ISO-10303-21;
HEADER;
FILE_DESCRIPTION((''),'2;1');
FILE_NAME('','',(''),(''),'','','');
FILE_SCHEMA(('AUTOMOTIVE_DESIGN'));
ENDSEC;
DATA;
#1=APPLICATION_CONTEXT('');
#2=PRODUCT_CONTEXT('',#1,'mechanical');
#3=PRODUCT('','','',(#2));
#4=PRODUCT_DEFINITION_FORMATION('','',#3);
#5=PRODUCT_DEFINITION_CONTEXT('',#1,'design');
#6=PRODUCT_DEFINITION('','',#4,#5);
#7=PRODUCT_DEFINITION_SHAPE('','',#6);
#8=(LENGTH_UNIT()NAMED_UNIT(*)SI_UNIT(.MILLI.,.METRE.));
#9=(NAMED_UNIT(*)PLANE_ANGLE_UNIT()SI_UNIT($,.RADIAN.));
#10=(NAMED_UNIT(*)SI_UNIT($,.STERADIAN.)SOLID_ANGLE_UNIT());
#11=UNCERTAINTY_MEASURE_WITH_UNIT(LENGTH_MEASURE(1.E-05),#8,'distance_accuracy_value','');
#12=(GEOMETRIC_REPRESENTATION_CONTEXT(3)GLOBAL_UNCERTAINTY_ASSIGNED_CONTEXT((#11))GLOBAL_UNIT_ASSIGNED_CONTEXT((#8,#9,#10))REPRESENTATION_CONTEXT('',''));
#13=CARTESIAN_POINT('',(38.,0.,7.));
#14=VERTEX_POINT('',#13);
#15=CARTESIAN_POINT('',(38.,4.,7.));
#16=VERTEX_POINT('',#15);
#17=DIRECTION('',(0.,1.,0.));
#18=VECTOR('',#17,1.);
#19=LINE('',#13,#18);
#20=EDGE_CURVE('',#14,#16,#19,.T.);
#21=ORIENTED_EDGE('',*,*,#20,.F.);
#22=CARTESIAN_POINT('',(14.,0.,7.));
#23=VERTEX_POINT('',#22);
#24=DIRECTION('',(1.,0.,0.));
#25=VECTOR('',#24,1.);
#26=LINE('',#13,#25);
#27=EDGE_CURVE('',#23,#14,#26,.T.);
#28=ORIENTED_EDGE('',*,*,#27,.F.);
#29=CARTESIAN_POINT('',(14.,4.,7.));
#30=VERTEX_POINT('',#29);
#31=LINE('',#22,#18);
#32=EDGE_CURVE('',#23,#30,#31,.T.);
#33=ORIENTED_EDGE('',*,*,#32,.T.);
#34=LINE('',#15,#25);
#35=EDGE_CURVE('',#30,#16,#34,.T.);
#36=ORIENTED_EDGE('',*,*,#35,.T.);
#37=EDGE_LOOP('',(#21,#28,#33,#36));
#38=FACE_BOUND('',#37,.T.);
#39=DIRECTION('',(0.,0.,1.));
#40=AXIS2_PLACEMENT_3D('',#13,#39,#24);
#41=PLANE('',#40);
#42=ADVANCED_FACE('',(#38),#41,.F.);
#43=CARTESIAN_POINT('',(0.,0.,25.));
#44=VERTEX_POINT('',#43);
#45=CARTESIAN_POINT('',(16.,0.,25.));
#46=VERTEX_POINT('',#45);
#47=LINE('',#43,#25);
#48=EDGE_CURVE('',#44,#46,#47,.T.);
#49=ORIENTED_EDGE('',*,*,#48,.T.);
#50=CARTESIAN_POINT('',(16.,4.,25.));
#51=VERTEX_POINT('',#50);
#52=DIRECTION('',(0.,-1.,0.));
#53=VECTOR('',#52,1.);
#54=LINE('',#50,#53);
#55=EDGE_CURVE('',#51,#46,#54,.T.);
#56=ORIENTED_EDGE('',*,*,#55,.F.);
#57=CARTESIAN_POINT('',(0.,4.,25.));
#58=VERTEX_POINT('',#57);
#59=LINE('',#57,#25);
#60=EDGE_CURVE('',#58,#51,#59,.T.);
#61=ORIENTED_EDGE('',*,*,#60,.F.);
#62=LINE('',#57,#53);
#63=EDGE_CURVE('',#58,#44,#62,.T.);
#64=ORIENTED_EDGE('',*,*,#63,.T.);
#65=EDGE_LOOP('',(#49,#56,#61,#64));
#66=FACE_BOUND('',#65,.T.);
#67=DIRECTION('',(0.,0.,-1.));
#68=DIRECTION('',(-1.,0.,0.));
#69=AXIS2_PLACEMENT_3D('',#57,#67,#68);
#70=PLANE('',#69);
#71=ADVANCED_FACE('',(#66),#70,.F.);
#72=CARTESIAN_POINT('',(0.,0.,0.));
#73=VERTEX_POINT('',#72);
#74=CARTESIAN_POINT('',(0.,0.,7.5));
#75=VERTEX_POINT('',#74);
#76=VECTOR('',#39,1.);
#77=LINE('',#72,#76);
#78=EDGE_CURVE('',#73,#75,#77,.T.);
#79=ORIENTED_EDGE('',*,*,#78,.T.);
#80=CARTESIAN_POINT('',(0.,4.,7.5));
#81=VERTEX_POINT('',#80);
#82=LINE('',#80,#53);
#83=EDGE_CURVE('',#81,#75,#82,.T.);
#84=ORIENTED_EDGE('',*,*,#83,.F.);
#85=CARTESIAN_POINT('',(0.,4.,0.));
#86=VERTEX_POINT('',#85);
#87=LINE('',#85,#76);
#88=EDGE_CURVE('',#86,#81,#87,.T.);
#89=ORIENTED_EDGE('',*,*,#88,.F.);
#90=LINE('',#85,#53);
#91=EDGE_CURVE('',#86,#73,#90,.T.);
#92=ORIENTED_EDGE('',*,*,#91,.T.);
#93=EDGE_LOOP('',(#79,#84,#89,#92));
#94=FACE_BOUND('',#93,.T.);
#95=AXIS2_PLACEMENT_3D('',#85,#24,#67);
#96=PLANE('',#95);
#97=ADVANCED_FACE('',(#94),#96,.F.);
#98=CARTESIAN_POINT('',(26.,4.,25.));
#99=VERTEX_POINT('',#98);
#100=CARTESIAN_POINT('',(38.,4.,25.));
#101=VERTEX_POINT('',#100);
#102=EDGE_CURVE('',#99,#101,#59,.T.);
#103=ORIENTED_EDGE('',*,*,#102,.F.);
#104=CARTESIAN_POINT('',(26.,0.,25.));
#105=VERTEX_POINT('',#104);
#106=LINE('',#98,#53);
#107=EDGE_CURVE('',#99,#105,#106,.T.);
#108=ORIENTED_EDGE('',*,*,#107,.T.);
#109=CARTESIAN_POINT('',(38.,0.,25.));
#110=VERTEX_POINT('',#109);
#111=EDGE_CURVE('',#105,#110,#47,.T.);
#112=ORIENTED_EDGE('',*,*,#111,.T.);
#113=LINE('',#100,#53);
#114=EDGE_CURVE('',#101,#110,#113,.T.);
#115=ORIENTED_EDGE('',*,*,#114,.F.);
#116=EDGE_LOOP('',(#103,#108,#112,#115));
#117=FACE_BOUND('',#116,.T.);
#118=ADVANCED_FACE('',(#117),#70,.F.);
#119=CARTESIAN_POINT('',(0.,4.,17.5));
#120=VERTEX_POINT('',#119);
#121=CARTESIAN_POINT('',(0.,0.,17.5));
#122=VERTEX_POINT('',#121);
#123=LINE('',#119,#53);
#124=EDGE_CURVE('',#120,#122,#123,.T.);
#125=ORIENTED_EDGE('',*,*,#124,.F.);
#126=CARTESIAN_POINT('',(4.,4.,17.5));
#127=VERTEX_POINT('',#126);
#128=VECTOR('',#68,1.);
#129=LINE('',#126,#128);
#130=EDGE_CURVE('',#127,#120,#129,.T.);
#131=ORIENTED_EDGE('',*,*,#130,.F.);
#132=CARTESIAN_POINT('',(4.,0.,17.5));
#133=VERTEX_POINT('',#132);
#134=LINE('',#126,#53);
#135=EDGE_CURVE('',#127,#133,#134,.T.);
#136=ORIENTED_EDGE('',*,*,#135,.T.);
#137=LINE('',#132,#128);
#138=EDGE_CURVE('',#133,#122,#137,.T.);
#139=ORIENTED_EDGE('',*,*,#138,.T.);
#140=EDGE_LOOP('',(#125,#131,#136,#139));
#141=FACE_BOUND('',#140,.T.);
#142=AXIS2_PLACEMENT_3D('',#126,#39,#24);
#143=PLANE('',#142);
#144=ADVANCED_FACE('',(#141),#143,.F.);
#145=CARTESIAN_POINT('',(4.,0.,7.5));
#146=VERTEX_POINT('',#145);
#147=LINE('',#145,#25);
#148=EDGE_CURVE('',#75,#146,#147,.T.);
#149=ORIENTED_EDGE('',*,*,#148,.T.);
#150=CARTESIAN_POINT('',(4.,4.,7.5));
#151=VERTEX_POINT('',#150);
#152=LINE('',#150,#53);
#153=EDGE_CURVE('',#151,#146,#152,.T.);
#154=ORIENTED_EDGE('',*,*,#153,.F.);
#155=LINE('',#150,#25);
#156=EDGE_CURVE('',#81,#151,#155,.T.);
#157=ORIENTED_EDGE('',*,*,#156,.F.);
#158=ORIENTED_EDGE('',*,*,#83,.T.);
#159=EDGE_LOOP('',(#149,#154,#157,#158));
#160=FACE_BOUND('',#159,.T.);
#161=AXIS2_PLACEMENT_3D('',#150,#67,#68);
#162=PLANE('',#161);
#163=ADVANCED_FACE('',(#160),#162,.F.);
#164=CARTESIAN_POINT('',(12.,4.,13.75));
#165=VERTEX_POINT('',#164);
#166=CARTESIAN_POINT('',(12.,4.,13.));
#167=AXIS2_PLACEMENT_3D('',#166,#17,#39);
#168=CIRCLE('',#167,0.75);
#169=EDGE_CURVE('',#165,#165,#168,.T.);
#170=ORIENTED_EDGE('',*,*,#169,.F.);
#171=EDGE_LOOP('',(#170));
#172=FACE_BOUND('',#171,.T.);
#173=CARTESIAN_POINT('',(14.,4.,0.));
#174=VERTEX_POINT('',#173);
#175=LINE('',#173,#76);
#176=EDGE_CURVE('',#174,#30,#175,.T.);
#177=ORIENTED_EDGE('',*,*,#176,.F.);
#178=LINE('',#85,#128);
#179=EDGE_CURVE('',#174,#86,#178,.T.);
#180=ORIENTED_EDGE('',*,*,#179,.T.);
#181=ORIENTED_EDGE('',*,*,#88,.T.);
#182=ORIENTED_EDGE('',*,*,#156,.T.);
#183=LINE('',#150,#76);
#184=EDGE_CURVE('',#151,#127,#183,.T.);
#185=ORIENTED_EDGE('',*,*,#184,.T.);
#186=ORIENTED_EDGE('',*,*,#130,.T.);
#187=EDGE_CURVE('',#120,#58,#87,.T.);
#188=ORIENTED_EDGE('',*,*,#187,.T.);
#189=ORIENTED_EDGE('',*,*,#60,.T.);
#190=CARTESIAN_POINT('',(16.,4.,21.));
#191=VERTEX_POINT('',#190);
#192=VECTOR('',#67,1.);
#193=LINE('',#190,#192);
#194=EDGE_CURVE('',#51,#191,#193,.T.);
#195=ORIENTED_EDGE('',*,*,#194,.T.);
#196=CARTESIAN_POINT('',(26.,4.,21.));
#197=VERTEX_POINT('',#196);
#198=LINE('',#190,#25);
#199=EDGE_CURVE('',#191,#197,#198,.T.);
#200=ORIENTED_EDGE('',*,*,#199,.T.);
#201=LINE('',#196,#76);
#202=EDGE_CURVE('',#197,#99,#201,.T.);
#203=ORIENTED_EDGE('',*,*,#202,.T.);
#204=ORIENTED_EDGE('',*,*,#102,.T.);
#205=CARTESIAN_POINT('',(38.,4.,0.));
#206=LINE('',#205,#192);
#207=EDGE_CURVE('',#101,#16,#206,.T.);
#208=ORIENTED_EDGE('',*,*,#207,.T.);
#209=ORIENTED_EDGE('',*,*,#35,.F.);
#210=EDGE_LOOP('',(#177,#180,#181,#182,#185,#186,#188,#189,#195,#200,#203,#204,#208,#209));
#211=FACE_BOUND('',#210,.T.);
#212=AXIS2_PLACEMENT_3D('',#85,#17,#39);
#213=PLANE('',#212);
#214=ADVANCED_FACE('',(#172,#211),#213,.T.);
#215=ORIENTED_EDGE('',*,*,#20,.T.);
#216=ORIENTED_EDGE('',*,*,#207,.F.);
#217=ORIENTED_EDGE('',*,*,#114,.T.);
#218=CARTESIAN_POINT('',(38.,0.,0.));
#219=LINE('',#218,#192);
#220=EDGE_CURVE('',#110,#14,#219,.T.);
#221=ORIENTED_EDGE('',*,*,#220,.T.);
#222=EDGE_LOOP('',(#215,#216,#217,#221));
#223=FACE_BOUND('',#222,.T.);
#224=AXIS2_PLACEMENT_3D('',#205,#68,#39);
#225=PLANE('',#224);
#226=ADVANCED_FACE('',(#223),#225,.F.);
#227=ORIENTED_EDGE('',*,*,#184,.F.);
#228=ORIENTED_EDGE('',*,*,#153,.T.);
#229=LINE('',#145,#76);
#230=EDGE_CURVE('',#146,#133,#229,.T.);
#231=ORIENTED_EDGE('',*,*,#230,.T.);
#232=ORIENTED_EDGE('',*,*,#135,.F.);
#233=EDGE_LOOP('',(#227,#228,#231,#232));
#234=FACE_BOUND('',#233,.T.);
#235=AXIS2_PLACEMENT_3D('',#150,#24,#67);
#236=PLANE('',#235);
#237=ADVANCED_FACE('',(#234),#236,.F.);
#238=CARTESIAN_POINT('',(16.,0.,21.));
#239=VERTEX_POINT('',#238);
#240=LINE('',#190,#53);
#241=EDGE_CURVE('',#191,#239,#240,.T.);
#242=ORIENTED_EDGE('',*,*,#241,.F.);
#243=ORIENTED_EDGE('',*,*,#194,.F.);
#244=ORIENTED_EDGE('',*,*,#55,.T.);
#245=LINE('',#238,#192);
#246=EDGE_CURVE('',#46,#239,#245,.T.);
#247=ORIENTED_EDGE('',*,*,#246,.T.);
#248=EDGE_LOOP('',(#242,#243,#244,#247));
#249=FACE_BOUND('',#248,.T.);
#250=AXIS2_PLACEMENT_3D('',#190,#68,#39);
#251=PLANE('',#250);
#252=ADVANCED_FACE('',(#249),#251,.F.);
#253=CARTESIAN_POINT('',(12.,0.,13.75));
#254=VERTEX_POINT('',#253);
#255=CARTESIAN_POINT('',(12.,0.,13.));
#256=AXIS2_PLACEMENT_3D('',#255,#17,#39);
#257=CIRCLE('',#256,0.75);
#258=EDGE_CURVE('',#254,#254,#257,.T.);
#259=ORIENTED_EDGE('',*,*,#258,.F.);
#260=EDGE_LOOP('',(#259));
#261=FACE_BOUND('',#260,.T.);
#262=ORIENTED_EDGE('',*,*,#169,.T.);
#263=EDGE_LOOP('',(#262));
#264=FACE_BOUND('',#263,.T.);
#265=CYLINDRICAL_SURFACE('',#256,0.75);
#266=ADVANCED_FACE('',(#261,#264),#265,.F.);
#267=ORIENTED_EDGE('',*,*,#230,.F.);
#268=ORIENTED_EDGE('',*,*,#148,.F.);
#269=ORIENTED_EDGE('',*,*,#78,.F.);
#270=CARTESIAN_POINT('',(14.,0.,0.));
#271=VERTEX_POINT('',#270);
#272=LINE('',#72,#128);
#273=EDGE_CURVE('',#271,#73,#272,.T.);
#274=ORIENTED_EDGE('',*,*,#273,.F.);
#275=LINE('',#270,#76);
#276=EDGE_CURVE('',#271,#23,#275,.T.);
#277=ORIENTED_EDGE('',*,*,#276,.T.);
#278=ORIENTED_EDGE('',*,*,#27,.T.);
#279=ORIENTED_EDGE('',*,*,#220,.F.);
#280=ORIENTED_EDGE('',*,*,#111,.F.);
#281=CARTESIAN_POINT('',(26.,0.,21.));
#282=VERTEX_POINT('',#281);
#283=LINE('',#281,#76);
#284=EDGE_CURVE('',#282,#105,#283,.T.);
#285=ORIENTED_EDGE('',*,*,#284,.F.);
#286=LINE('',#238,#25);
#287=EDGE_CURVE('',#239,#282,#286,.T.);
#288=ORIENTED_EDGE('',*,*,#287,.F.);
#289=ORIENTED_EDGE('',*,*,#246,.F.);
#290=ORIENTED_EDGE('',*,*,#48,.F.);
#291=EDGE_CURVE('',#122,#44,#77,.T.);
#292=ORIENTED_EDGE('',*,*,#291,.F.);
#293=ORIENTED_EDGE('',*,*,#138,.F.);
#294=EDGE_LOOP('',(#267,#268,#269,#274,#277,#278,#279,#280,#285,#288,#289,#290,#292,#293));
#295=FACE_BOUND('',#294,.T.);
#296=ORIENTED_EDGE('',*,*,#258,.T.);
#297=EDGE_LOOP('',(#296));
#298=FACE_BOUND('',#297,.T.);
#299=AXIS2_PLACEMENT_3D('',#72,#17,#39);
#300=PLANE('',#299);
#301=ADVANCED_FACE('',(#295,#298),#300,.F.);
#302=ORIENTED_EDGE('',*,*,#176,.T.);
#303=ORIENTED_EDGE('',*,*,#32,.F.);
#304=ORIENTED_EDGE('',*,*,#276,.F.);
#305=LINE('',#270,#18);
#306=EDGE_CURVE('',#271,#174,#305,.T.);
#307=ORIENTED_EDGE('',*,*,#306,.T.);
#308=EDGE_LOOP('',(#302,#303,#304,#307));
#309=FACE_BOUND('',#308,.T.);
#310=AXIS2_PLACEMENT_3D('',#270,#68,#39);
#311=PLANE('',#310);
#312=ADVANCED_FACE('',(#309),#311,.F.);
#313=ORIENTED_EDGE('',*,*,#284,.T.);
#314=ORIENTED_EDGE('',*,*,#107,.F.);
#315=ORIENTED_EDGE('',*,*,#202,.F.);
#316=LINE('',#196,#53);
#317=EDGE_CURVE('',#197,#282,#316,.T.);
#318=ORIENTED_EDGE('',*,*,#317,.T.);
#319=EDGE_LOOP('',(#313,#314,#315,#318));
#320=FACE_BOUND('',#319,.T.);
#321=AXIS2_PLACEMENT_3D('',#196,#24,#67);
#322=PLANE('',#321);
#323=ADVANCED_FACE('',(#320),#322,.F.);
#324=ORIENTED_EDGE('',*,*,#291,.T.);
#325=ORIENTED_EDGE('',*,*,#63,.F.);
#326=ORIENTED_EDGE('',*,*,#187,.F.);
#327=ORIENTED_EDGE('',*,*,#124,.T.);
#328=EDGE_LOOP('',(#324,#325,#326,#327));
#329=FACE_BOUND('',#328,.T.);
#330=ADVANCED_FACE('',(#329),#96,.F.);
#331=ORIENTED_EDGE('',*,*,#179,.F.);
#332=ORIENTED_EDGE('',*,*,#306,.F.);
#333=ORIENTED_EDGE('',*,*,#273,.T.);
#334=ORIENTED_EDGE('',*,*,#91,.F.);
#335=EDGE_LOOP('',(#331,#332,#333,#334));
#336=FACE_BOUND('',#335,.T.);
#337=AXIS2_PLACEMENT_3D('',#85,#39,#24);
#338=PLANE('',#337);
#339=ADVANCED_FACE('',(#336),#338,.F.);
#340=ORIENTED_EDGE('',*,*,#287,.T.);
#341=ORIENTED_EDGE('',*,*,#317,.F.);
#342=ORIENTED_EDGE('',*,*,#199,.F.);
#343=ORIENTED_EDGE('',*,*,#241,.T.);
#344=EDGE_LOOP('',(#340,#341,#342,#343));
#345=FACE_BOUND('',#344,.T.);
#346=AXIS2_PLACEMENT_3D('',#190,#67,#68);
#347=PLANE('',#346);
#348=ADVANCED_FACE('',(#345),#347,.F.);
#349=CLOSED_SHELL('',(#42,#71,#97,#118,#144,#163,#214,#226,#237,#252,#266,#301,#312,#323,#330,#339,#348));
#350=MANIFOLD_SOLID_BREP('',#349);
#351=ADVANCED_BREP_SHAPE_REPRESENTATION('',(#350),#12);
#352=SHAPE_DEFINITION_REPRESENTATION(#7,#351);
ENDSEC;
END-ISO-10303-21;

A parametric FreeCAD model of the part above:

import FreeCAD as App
import Part
import Sketcher

V = App.Vector

doc = App.newDocument("Part")
body = doc.addObject("PartDesign::Body", "Body")

# Sketch on XZ plane
sketch1 = body.newObject("Sketcher::SketchObject", "Sketch")
sketch1.AttachmentSupport = (doc.getObject("XZ_Plane"), [""])
sketch1.MapMode = "FlatFace"
sketch1.addGeometry(Part.LineSegment(V(0, 0, 0), V(0, 25, 0)), False)
sketch1.addGeometry(Part.LineSegment(V(0, 25, 0), V(38, 25, 0)), False)
sketch1.addGeometry(Part.LineSegment(V(38, 25, 0), V(38, 0, 0)), False)
sketch1.addGeometry(Part.LineSegment(V(38, 0, 0), V(0, 0, 0)), False)
sketch1.addConstraint(Sketcher.Constraint("Coincident", 0, 2, 1, 1))
sketch1.addConstraint(Sketcher.Constraint("Coincident", 1, 2, 2, 1))
sketch1.addConstraint(Sketcher.Constraint("Coincident", 2, 2, 3, 1))
sketch1.addConstraint(Sketcher.Constraint("Coincident", 3, 2, 0, 1))
sketch1.addConstraint(Sketcher.Constraint("Vertical", 0))
sketch1.addConstraint(Sketcher.Constraint("Horizontal", 1))
sketch1.addConstraint(Sketcher.Constraint("Vertical", 2))
sketch1.addConstraint(Sketcher.Constraint("Horizontal", 3))
sketch1.addConstraint(Sketcher.Constraint("Coincident", 3, 2, -1, 1))
sketch1.addConstraint(Sketcher.Constraint("DistanceX", 1, 1, 1, 2, 38.0))
sketch1.addConstraint(Sketcher.Constraint("DistanceY", 0, 1, 0, 2, 25.0))
pad1 = body.newObject("PartDesign::Pad", "Pad")
pad1.Profile = sketch1
pad1.Length = 4
pad1.Reversed = True

# Sketch on XZ plane
sketch2 = body.newObject("Sketcher::SketchObject", "Sketch001")
sketch2.AttachmentSupport = (doc.getObject("XZ_Plane"), [""])
sketch2.MapMode = "FlatFace"
sketch2.AttachmentOffset = App.Placement(V(0, 0, -4), App.Rotation())
sketch2.addGeometry(Part.LineSegment(V(14, 0, 0), V(14, 7, 0)), False)
sketch2.addGeometry(Part.LineSegment(V(14, 7, 0), V(38, 7, 0)), False)
sketch2.addGeometry(Part.LineSegment(V(38, 7, 0), V(38, 0, 0)), False)
sketch2.addGeometry(Part.LineSegment(V(38, 0, 0), V(14, 0, 0)), False)
sketch2.addConstraint(Sketcher.Constraint("Coincident", 0, 2, 1, 1))
sketch2.addConstraint(Sketcher.Constraint("Coincident", 1, 2, 2, 1))
sketch2.addConstraint(Sketcher.Constraint("Coincident", 2, 2, 3, 1))
sketch2.addConstraint(Sketcher.Constraint("Coincident", 3, 2, 0, 1))
sketch2.addConstraint(Sketcher.Constraint("Vertical", 0))
sketch2.addConstraint(Sketcher.Constraint("Horizontal", 1))
sketch2.addConstraint(Sketcher.Constraint("Vertical", 2))
sketch2.addConstraint(Sketcher.Constraint("Horizontal", 3))
sketch2.addConstraint(Sketcher.Constraint("PointOnObject", 2, 2, -1))
sketch2.addConstraint(Sketcher.Constraint("DistanceX", 1, 1, 1, 2, 24.0))
sketch2.addConstraint(Sketcher.Constraint("DistanceY", 0, 1, 0, 2, 7.0))
sketch2.addConstraint(Sketcher.Constraint("DistanceX", -1, 1, 0, 2, 14.0))
pocket1 = body.newObject("PartDesign::Pocket", "Pocket")
pocket1.Profile = sketch2
pocket1.Type = "ThroughAll"
pocket1.Reversed = True

# Sketch on XZ plane
sketch3 = body.newObject("Sketcher::SketchObject", "Sketch002")
sketch3.AttachmentSupport = (doc.getObject("XZ_Plane"), [""])
sketch3.MapMode = "FlatFace"
sketch3.addGeometry(Part.LineSegment(V(0, 17.5, 0), V(0, 7.5, 0)), False)
sketch3.addGeometry(Part.LineSegment(V(0, 7.5, 0), V(4, 7.5, 0)), False)
sketch3.addGeometry(Part.LineSegment(V(4, 7.5, 0), V(4, 17.5, 0)), False)
sketch3.addGeometry(Part.LineSegment(V(4, 17.5, 0), V(0, 17.5, 0)), False)
sketch3.addConstraint(Sketcher.Constraint("Coincident", 0, 2, 1, 1))
sketch3.addConstraint(Sketcher.Constraint("Coincident", 1, 2, 2, 1))
sketch3.addConstraint(Sketcher.Constraint("Coincident", 2, 2, 3, 1))
sketch3.addConstraint(Sketcher.Constraint("Coincident", 3, 2, 0, 1))
sketch3.addConstraint(Sketcher.Constraint("Vertical", 0))
sketch3.addConstraint(Sketcher.Constraint("Horizontal", 1))
sketch3.addConstraint(Sketcher.Constraint("Vertical", 2))
sketch3.addConstraint(Sketcher.Constraint("Horizontal", 3))
sketch3.addConstraint(Sketcher.Constraint("PointOnObject", 0, 2, -2))
sketch3.addConstraint(Sketcher.Constraint("DistanceX", 1, 1, 1, 2, 4.0))
sketch3.addConstraint(Sketcher.Constraint("DistanceY", 0, 2, 0, 1, 10.0))
sketch3.addConstraint(Sketcher.Constraint("DistanceY", -1, 1, 0, 2, 7.5))
pocket2 = body.newObject("PartDesign::Pocket", "Pocket001")
pocket2.Profile = sketch3
pocket2.Type = "ThroughAll"

# Sketch on XZ plane
sketch4 = body.newObject("Sketcher::SketchObject", "Sketch003")
sketch4.AttachmentSupport = (doc.getObject("XZ_Plane"), [""])
sketch4.MapMode = "FlatFace"
sketch4.addGeometry(Part.LineSegment(V(26, 21, 0), V(26, 25, 0)), False)
sketch4.addGeometry(Part.LineSegment(V(26, 25, 0), V(16, 25, 0)), False)
sketch4.addGeometry(Part.LineSegment(V(16, 25, 0), V(16, 21, 0)), False)
sketch4.addGeometry(Part.LineSegment(V(16, 21, 0), V(26, 21, 0)), False)
sketch4.addConstraint(Sketcher.Constraint("Coincident", 0, 2, 1, 1))
sketch4.addConstraint(Sketcher.Constraint("Coincident", 1, 2, 2, 1))
sketch4.addConstraint(Sketcher.Constraint("Coincident", 2, 2, 3, 1))
sketch4.addConstraint(Sketcher.Constraint("Coincident", 3, 2, 0, 1))
sketch4.addConstraint(Sketcher.Constraint("Vertical", 0))
sketch4.addConstraint(Sketcher.Constraint("Horizontal", 1))
sketch4.addConstraint(Sketcher.Constraint("Vertical", 2))
sketch4.addConstraint(Sketcher.Constraint("Horizontal", 3))
sketch4.addConstraint(Sketcher.Constraint("DistanceX", 1, 2, 1, 1, 10.0))
sketch4.addConstraint(Sketcher.Constraint("DistanceY", 0, 1, 0, 2, 4.0))
sketch4.addConstraint(Sketcher.Constraint("DistanceX", -1, 1, 0, 2, 26.0))
sketch4.addConstraint(Sketcher.Constraint("DistanceY", -1, 1, 0, 2, 25.0))
pocket3 = body.newObject("PartDesign::Pocket", "Pocket002")
pocket3.Profile = sketch4
pocket3.Type = "ThroughAll"

# Sketch on XZ plane
sketch5 = body.newObject("Sketcher::SketchObject", "Sketch004")
sketch5.AttachmentSupport = (doc.getObject("XZ_Plane"), [""])
sketch5.MapMode = "FlatFace"
sketch5.AttachmentOffset = App.Placement(V(0, 0, -4), App.Rotation())
sketch5.addGeometry(Part.Circle(V(12, 13, 0), V(0, 0, 1), 0.8), False)
sketch5.addConstraint(Sketcher.Constraint("Diameter", 0, 1.5))
sketch5.addConstraint(Sketcher.Constraint("DistanceX", -1, 1, 0, 3, 12.0))
sketch5.addConstraint(Sketcher.Constraint("DistanceY", -1, 1, 0, 3, 13.0))
pocket4 = body.newObject("PartDesign::Pocket", "Pocket003")
pocket4.Profile = sketch5
pocket4.Type = "ThroughAll"
pocket4.Reversed = True

doc.recompute()
